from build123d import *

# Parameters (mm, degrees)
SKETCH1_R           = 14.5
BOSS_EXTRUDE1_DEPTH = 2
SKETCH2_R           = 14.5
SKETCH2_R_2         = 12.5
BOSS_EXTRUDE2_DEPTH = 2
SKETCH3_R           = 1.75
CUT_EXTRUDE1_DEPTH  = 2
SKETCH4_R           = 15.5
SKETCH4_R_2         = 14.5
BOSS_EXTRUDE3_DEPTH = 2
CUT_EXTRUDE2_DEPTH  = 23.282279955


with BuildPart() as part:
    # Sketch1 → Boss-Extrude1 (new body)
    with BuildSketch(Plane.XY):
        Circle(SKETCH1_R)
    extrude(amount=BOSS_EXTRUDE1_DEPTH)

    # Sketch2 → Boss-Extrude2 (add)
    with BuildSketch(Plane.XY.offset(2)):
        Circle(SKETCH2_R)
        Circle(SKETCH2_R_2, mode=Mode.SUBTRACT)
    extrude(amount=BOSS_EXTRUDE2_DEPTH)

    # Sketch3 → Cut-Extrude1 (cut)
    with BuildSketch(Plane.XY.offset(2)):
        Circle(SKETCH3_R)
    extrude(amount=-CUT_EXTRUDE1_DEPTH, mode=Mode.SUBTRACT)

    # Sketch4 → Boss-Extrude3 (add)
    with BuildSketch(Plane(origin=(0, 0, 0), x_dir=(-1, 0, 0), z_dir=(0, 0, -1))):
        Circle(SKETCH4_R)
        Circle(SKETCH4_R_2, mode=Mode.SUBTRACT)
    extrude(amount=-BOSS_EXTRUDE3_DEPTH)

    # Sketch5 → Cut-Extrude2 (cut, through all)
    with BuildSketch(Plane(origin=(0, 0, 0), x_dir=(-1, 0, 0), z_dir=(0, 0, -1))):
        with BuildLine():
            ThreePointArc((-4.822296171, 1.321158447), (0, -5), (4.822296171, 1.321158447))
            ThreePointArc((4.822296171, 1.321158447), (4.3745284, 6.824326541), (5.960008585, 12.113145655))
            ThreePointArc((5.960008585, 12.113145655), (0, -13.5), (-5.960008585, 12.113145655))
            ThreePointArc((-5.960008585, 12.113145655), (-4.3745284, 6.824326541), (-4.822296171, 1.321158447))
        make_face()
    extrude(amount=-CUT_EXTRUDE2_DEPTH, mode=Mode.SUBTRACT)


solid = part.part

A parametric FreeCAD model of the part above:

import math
import FreeCAD as App
import Part
import Sketcher

doc = App.newDocument("Part")
body = doc.addObject("PartDesign::Body", "Body")

# Sketch on XY plane
sketch1 = body.newObject("Sketcher::SketchObject", "Sketch")
sketch1.AttachmentSupport = (doc.getObject("XY_Plane"), [""])
sketch1.MapMode = "FlatFace"
sketch1.addGeometry(Part.Circle(App.Vector(0, 0, 0), App.Vector(0, 0, 1), 14.5), False)
sketch1.addConstraint([
    Sketcher.Constraint("Coincident", 0, 3, -1, 1),
    Sketcher.Constraint("Diameter", 0, 29.0),
])
pad1 = body.newObject("PartDesign::Pad", "Pad")
pad1.Profile = sketch1
pad1.Length = 2

# Sketch on XY plane
sketch2 = body.newObject("Sketcher::SketchObject", "Sketch001")
sketch2.AttachmentSupport = (doc.getObject("XY_Plane"), [""])
sketch2.MapMode = "FlatFace"
sketch2.AttachmentOffset = App.Placement(App.Vector(0, 0, 2), App.Rotation())
sketch2.addGeometry([
    Part.Circle(App.Vector(0, 0, 0), App.Vector(0, 0, 1), 14.5),
    Part.Circle(App.Vector(0, 0, 0), App.Vector(0, 0, 1), 12.5),
], False)
sketch2.addConstraint([
    Sketcher.Constraint("Coincident", 0, 3, -1, 1),
    Sketcher.Constraint("Coincident", 1, 3, -1, 1),
    Sketcher.Constraint("Diameter", 0, 29.0),
    Sketcher.Constraint("Diameter", 1, 25.0),
])
pad2 = body.newObject("PartDesign::Pad", "Pad001")
pad2.Profile = sketch2
pad2.Length = 2

# Sketch on XY plane
sketch3 = body.newObject("Sketcher::SketchObject", "Sketch002")
sketch3.AttachmentSupport = (doc.getObject("XY_Plane"), [""])
sketch3.MapMode = "FlatFace"
sketch3.AttachmentOffset = App.Placement(App.Vector(0, 0, 2), App.Rotation())
sketch3.addGeometry(Part.Circle(App.Vector(0, 0, 0), App.Vector(0, 0, 1), 1.75), False)
sketch3.addConstraint([
    Sketcher.Constraint("Coincident", 0, 3, -1, 1),
    Sketcher.Constraint("Diameter", 0, 3.5),
])
pocket1 = body.newObject("PartDesign::Pocket", "Pocket")
pocket1.Profile = sketch3
pocket1.Length = 2

# Sketch on XY plane
sketch4 = body.newObject("Sketcher::SketchObject", "Sketch003")
sketch4.AttachmentSupport = (doc.getObject("XY_Plane"), [""])
sketch4.MapMode = "FlatFace"
sketch4.addGeometry([
    Part.Circle(App.Vector(0, 0, 0), App.Vector(0, 0, 1), 15.5),
    Part.Circle(App.Vector(0, 0, 0), App.Vector(0, 0, 1), 14.5),
], False)
sketch4.addConstraint([
    Sketcher.Constraint("Coincident", 0, 3, -1, 1),
    Sketcher.Constraint("Coincident", 1, 3, -1, 1),
    Sketcher.Constraint("Diameter", 0, 31.0),
    Sketcher.Constraint("Diameter", 1, 29.0),
])
pad3 = body.newObject("PartDesign::Pad", "Pad002")
pad3.Profile = sketch4
pad3.Length = 2

# Sketch on XY plane
sketch5 = body.newObject("Sketcher::SketchObject", "Sketch004")
sketch5.AttachmentSupport = (doc.getObject("XY_Plane"), [""])
sketch5.MapMode = "FlatFace"
sketch5.addGeometry([
    Part.ArcOfCircle(Part.Circle(App.Vector(0, 0, 0), App.Vector(0, 0, 1), 5), math.radians(164.678695), math.radians(375.321305)),
    Part.ArcOfCircle(Part.Circle(App.Vector(19.203153, 5.261064, 0), App.Vector(0, 0, 1), 14.910798), math.radians(152.642686), math.radians(195.321305)),
    Part.ArcOfCircle(Part.Circle(App.Vector(0, 0, 0), App.Vector(0, 0, 1), 13.5), math.radians(116.198484), math.radians(423.801516)),
    Part.ArcOfCircle(Part.Circle(App.Vector(-19.203153, 5.261064, 0), App.Vector(0, 0, 1), 14.910798), math.radians(-15.321305), math.radians(27.357314)),
], False)
sketch5.addConstraint([
    Sketcher.Constraint("Tangent", 0, 2, 1, 2),
    Sketcher.Constraint("Coincident", 1, 1, 2, 2),
    Sketcher.Constraint("Coincident", 2, 1, 3, 2),
    Sketcher.Constraint("Tangent", 3, 1, 0, 1),
    Sketcher.Constraint("Coincident", 0, 3, -1, 1),
    Sketcher.Constraint("Coincident", 2, 3, -1, 1),
    Sketcher.Constraint("Equal", 1, 3),
    Sketcher.Constraint("Horizontal", 1, 3, 3, 3),
    Sketcher.Constraint("Radius", 0, 5.0),
    Sketcher.Constraint("Radius", 2, 13.5),
    Sketcher.Constraint("Radius", 1, 14.910798),
    Sketcher.Constraint("DistanceY", -1, 1, 0, 2, 1.321158),
])
pocket2 = body.newObject("PartDesign::Pocket", "Pocket001")
pocket2.Profile = sketch5
pocket2.Type = "ThroughAll"
pocket2.Reversed = True

doc.recompute()
